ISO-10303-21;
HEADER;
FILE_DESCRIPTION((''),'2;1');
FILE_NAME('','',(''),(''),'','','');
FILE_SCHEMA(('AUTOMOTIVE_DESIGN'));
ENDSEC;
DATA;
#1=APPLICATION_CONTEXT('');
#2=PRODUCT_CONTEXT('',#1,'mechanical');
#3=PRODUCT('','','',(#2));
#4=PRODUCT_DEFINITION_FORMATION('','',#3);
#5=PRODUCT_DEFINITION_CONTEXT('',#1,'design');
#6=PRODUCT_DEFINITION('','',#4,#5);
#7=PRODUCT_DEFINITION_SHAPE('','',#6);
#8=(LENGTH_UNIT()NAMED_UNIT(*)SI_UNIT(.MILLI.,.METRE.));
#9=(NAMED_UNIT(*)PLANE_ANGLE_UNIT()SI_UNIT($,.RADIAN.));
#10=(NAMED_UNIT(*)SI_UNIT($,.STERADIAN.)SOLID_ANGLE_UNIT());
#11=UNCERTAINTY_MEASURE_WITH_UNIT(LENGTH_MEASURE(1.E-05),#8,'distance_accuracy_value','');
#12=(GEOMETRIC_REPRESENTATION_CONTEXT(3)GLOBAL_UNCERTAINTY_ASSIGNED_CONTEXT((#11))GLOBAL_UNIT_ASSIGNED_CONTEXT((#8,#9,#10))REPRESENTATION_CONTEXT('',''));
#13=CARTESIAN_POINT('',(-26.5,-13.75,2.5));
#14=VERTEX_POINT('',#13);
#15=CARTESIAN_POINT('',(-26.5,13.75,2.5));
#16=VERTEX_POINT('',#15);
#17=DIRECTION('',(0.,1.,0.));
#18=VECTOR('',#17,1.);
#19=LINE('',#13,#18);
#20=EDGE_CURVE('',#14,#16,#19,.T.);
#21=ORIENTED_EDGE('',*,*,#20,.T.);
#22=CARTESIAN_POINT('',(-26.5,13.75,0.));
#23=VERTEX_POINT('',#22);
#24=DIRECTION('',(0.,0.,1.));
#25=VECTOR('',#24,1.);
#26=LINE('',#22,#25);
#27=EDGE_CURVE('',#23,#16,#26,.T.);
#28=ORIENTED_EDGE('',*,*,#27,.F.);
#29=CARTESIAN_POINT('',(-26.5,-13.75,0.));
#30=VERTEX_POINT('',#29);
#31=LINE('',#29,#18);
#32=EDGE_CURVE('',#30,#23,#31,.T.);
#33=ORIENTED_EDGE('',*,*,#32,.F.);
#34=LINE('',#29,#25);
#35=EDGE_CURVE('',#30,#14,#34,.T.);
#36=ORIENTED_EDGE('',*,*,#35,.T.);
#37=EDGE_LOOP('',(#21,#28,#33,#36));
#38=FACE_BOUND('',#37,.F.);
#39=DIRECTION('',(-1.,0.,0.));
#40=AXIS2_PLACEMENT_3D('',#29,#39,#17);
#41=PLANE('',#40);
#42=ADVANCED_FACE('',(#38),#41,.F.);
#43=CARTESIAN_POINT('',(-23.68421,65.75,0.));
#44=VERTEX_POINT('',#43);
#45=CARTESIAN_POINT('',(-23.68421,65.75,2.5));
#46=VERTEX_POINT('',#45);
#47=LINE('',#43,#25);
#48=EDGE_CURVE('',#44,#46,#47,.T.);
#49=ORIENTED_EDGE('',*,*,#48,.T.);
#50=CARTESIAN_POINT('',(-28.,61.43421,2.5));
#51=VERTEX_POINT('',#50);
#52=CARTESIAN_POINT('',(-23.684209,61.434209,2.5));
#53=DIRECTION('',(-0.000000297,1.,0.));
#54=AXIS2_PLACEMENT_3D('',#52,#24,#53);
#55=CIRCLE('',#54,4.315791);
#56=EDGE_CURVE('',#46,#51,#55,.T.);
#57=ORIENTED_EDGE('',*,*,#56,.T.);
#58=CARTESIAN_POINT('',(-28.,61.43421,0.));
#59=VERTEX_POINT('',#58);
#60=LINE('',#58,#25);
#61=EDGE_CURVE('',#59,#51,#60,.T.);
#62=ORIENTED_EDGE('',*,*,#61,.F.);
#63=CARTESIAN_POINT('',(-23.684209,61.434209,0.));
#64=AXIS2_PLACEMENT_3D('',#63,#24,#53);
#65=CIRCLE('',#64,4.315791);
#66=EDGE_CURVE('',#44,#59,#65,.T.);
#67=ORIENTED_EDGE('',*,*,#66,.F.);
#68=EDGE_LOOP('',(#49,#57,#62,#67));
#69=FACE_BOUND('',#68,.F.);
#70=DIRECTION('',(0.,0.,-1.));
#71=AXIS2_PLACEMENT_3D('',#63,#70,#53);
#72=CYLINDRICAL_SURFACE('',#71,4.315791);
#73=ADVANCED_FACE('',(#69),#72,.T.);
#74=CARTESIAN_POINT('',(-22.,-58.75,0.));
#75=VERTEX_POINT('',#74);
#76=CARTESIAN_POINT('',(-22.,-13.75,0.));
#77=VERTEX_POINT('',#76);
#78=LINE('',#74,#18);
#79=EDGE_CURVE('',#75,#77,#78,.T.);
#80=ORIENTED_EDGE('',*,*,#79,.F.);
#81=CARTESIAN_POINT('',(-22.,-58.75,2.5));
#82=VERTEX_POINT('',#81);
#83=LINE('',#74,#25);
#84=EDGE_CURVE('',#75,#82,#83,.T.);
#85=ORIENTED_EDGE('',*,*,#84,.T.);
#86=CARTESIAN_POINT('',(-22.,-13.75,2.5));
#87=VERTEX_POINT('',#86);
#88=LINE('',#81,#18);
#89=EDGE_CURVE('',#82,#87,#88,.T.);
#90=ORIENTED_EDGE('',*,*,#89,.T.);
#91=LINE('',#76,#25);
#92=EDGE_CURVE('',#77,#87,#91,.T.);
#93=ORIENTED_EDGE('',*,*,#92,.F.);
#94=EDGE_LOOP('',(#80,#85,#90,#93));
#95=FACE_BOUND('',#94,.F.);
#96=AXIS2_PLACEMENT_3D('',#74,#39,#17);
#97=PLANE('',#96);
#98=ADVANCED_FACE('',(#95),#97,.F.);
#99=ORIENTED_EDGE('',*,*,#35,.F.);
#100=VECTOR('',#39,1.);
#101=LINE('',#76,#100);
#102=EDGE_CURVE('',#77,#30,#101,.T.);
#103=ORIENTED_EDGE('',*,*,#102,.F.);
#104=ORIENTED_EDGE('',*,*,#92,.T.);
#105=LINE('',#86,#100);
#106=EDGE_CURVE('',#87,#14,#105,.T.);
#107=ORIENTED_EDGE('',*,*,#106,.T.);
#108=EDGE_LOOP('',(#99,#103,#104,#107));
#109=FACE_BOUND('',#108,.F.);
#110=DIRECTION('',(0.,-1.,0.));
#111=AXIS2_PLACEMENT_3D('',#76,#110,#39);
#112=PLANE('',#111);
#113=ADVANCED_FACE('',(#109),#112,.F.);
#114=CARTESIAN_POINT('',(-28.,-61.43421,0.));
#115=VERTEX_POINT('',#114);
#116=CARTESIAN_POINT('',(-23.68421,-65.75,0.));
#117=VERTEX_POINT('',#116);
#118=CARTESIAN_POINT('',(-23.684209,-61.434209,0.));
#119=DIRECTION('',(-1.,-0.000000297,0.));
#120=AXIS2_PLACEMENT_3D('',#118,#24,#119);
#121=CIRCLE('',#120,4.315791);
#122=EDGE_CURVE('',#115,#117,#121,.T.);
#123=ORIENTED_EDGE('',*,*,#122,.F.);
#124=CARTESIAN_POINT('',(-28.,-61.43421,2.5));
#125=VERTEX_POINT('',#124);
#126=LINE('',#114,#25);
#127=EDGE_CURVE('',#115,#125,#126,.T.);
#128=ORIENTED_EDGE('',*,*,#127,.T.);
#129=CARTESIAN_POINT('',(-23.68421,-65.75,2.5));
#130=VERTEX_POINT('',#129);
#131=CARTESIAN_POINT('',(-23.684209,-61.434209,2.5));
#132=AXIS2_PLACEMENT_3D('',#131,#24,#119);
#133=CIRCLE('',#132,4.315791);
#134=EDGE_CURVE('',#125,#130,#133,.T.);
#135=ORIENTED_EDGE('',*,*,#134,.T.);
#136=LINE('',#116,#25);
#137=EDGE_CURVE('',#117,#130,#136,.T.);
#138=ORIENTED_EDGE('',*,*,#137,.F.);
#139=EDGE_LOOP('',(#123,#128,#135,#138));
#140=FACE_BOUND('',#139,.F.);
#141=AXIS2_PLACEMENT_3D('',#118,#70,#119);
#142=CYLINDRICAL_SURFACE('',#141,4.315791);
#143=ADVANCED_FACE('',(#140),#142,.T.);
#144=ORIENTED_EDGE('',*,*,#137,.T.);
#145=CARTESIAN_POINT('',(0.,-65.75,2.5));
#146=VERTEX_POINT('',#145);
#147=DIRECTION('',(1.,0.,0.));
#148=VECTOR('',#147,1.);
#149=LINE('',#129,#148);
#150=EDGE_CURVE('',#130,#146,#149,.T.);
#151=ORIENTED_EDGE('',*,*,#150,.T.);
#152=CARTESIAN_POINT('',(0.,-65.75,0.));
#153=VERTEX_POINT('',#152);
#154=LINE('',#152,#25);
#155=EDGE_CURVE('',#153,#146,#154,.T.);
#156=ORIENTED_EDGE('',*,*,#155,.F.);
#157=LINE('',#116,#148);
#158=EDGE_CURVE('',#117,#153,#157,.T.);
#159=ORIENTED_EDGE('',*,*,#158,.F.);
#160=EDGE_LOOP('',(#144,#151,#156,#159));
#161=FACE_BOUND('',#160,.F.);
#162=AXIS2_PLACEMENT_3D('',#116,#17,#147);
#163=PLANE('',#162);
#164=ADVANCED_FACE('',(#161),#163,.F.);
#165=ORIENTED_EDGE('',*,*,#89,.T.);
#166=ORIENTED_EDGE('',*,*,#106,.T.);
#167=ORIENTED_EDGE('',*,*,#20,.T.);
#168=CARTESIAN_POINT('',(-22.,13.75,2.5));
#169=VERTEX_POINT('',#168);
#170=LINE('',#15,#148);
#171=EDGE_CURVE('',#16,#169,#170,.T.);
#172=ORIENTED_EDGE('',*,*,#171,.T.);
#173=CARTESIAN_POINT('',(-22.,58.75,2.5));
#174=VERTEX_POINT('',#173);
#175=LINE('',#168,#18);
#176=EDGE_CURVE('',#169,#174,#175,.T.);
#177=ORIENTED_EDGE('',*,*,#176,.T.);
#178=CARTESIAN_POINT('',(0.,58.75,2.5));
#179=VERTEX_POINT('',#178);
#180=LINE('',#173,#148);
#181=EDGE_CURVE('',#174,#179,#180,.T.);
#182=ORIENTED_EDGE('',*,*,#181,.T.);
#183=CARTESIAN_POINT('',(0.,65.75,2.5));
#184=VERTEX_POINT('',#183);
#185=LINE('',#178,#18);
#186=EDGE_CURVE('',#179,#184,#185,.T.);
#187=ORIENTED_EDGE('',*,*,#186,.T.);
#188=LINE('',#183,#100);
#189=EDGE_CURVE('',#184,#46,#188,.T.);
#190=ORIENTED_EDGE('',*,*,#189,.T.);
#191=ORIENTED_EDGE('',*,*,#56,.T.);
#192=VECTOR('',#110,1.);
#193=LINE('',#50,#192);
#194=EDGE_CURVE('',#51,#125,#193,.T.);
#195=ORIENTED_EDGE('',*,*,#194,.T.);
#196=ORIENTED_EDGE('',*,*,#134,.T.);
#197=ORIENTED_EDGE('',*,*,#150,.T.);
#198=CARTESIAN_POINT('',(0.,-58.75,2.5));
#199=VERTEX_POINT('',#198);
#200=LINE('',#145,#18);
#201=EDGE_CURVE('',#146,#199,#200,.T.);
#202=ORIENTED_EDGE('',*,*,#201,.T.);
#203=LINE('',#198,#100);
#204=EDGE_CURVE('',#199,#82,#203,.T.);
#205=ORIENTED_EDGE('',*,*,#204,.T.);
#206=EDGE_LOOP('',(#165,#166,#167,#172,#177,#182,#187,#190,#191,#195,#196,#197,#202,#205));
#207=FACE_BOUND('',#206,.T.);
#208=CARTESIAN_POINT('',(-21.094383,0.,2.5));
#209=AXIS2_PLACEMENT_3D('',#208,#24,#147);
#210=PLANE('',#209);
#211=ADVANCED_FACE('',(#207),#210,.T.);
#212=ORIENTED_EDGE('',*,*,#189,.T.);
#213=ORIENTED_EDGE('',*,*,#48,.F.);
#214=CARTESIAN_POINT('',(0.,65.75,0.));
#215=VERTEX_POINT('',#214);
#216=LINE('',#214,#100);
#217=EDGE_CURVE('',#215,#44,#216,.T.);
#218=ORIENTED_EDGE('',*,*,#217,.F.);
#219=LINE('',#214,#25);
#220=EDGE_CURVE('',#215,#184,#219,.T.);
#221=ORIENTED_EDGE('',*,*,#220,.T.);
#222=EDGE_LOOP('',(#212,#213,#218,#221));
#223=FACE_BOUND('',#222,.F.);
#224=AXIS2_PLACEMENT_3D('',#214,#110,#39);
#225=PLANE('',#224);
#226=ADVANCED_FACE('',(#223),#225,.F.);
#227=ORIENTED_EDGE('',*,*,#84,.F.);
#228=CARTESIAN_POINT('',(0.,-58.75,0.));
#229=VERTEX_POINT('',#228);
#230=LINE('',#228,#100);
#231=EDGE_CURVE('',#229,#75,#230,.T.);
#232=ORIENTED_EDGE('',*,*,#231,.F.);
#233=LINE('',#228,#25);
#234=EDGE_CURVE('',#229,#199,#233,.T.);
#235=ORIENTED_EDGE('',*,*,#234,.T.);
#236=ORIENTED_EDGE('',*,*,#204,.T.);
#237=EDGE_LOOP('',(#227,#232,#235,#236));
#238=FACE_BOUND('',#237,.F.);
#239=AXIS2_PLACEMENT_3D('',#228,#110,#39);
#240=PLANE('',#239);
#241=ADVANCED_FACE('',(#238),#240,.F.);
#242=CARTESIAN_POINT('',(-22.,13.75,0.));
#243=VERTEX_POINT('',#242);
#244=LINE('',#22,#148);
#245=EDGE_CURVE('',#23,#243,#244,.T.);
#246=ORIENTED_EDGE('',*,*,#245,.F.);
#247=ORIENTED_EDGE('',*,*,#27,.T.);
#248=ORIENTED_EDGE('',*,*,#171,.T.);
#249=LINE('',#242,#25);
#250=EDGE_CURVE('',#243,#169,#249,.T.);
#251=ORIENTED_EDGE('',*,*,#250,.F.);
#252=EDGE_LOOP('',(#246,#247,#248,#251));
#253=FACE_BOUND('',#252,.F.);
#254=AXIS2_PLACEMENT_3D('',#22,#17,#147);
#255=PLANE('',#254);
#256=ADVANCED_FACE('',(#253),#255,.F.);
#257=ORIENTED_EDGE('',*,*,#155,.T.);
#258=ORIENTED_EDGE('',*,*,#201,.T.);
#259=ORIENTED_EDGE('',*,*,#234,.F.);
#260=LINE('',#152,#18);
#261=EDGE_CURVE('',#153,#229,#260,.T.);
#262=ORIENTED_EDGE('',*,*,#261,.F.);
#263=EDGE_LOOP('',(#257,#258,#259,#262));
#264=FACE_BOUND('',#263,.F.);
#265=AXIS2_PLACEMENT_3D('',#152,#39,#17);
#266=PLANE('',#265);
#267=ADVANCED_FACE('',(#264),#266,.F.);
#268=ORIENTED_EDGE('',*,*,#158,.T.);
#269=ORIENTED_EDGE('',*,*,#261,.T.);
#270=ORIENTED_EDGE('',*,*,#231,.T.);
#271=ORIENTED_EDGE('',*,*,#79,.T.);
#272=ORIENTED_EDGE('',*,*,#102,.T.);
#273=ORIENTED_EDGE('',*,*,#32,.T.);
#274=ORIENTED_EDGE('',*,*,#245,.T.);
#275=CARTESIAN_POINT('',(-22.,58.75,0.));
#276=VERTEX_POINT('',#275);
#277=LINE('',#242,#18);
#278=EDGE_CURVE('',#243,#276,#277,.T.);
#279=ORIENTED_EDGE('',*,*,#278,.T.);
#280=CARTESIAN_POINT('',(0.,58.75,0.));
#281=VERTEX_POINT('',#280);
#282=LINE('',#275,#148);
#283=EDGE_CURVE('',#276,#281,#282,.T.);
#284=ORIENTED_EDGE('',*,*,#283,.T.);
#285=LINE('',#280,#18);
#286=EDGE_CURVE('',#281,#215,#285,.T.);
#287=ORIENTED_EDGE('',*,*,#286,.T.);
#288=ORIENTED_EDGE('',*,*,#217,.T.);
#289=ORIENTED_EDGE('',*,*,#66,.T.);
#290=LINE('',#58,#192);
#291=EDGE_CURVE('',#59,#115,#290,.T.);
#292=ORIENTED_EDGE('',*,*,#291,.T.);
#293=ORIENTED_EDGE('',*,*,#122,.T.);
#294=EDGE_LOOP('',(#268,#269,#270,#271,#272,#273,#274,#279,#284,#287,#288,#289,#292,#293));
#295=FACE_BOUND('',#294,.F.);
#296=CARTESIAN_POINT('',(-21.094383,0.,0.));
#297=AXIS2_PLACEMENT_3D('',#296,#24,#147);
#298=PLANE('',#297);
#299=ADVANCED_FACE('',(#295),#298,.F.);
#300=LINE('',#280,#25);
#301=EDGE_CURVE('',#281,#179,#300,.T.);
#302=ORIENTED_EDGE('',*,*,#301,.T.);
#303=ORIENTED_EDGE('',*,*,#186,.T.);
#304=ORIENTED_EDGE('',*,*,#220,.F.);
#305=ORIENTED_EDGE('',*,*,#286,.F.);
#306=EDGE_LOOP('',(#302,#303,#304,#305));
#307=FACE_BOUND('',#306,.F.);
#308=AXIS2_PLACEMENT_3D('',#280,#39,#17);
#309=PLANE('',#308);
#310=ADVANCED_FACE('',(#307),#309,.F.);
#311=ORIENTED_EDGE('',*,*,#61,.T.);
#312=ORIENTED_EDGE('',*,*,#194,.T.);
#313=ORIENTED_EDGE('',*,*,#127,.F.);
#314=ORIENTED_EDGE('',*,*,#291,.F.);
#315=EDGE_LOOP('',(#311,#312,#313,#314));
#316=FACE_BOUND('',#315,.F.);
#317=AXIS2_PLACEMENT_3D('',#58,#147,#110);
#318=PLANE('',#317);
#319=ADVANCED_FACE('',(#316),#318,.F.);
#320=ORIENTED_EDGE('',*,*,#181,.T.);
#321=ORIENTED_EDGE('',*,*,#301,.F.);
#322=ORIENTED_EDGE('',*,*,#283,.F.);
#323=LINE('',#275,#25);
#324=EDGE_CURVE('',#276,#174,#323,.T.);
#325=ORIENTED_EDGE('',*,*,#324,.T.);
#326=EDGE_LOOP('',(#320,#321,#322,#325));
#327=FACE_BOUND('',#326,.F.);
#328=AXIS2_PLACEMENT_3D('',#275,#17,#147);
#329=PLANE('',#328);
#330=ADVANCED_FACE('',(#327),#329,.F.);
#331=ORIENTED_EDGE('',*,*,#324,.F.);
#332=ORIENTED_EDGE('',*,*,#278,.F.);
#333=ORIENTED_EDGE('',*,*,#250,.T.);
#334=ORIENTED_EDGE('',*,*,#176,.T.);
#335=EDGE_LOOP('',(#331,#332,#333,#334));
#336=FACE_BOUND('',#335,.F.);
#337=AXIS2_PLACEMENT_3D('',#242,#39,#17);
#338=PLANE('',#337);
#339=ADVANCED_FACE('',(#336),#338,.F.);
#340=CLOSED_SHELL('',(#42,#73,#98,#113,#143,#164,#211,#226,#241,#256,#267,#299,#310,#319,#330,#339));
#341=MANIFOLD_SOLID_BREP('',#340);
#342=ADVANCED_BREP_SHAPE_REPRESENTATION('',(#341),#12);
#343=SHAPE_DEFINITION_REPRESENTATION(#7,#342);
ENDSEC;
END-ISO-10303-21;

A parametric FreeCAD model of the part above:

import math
import FreeCAD as App
import Part
import Sketcher
Q = App.Units.Quantity

doc = App.newDocument("Part")
body = doc.addObject("PartDesign::Body", "Body")

# Sketch on XY plane
sketch1 = body.newObject("Sketcher::SketchObject", "Sketch")
sketch1.AttachmentSupport = (doc.getObject("XY_Plane"), [""])
sketch1.MapMode = "FlatFace"
sketch1.addGeometry(Part.LineSegment(App.Vector(-22, 58.75, 0), App.Vector(0, 58.75, 0)), False)
sketch1.addGeometry(Part.LineSegment(App.Vector(0, 58.75, 0), App.Vector(0, 65.75, 0)), False)
sketch1.addGeometry(Part.LineSegment(App.Vector(0, 65.75, 0), App.Vector(-23.68421, 65.75, 0)), False)
sketch1.addGeometry(Part.ArcOfCircle(Part.Circle(App.Vector(-23.684209, 61.434209, 0), App.Vector(0, 0, 1), 4.315791), math.radians(90.000017), math.radians(179.999983)), False)
sketch1.addGeometry(Part.LineSegment(App.Vector(-28, 61.43421, 0), App.Vector(-28, -61.43421, 0)), False)
sketch1.addGeometry(Part.ArcOfCircle(Part.Circle(App.Vector(-23.684209, -61.434209, 0), App.Vector(0, 0, 1), 4.315791), math.radians(-179.999983), math.radians(-90.000017)), False)
sketch1.addGeometry(Part.LineSegment(App.Vector(-23.68421, -65.75, 0), App.Vector(0, -65.75, 0)), False)
sketch1.addGeometry(Part.LineSegment(App.Vector(0, -65.75, 0), App.Vector(0, -58.75, 0)), False)
sketch1.addGeometry(Part.LineSegment(App.Vector(0, -58.75, 0), App.Vector(-22, -58.75, 0)), False)
sketch1.addGeometry(Part.LineSegment(App.Vector(-22, -58.75, 0), App.Vector(-22, -13.75, 0)), False)
sketch1.addGeometry(Part.LineSegment(App.Vector(-22, -13.75, 0), App.Vector(-26.5, -13.75, 0)), False)
sketch1.addGeometry(Part.LineSegment(App.Vector(-26.5, -13.75, 0), App.Vector(-26.5, 13.75, 0)), False)
sketch1.addGeometry(Part.LineSegment(App.Vector(-26.5, 13.75, 0), App.Vector(-22, 13.75, 0)), False)
sketch1.addGeometry(Part.LineSegment(App.Vector(-22, 13.75, 0), App.Vector(-22, 58.75, 0)), False)
sketch1.addConstraint(Sketcher.Constraint("Coincident", 0, 2, 1, 1))
sketch1.addConstraint(Sketcher.Constraint("Coincident", 1, 2, 2, 1))
sketch1.addConstraint(Sketcher.Constraint("Tangent", 2, 2, 3, 1))
sketch1.addConstraint(Sketcher.Constraint("Tangent", 3, 2, 4, 1))
sketch1.addConstraint(Sketcher.Constraint("Tangent", 4, 2, 5, 1))
sketch1.addConstraint(Sketcher.Constraint("Tangent", 5, 2, 6, 1))
sketch1.addConstraint(Sketcher.Constraint("Coincident", 6, 2, 7, 1))
sketch1.addConstraint(Sketcher.Constraint("Coincident", 7, 2, 8, 1))
sketch1.addConstraint(Sketcher.Constraint("Coincident", 8, 2, 9, 1))
sketch1.addConstraint(Sketcher.Constraint("Coincident", 9, 2, 10, 1))
sketch1.addConstraint(Sketcher.Constraint("Coincident", 10, 2, 11, 1))
sketch1.addConstraint(Sketcher.Constraint("Coincident", 11, 2, 12, 1))
sketch1.addConstraint(Sketcher.Constraint("Coincident", 12, 2, 13, 1))
sketch1.addConstraint(Sketcher.Constraint("Coincident", 13, 2, 0, 1))
sketch1.addConstraint(Sketcher.Constraint("Horizontal", 0))
sketch1.addConstraint(Sketcher.Constraint("Vertical", 1))
sketch1.addConstraint(Sketcher.Constraint("Horizontal", 2))
sketch1.addConstraint(Sketcher.Constraint("Vertical", 4))
sketch1.addConstraint(Sketcher.Constraint("Horizontal", 6))
sketch1.addConstraint(Sketcher.Constraint("Vertical", 7))
sketch1.addConstraint(Sketcher.Constraint("Horizontal", 8))
sketch1.addConstraint(Sketcher.Constraint("Vertical", 9))
sketch1.addConstraint(Sketcher.Constraint("Horizontal", 10))
sketch1.addConstraint(Sketcher.Constraint("Vertical", 11))
sketch1.addConstraint(Sketcher.Constraint("Horizontal", 12))
sketch1.addConstraint(Sketcher.Constraint("Vertical", 13))
sketch1.addConstraint(Sketcher.Constraint("Equal", 3, 5))
sketch1.addConstraint(Sketcher.Constraint("Symmetric", 1, 2, 6, 2, -1, 1))
sketch1.addConstraint(Sketcher.Constraint("Symmetric", 0, 2, 7, 2, -1))
sketch1.addConstraint(Sketcher.Constraint("Symmetric", 9, 2, 12, 2, -1))
sketch1.addConstraint(Sketcher.Constraint("DistanceX", 0, 1, 0, 2, Q("22 mm")))
sketch1.addConstraint(Sketcher.Constraint("DistanceY", 1, 1, 1, 2, Q("7 mm")))
sketch1.addConstraint(Sketcher.Constraint("DistanceY", 9, 1, 9, 2, Q("45 mm")))
sketch1.addConstraint(Sketcher.Constraint("DistanceX", 10, 2, 10, 1, Q("4.5 mm")))
sketch1.addConstraint(Sketcher.Constraint("DistanceY", 11, 1, 11, 2, Q("27.5 mm")))
sketch1.addConstraint(Sketcher.Constraint("DistanceX", 3, 2, -1, 1, Q("28 mm")))
sketch1.addConstraint(Sketcher.Constraint("Radius", 3, Q("4.315791 mm")))
pad1 = body.newObject("PartDesign::Pad", "Pad")
pad1.Profile = sketch1
pad1.Length = 2.5

doc.recompute()
